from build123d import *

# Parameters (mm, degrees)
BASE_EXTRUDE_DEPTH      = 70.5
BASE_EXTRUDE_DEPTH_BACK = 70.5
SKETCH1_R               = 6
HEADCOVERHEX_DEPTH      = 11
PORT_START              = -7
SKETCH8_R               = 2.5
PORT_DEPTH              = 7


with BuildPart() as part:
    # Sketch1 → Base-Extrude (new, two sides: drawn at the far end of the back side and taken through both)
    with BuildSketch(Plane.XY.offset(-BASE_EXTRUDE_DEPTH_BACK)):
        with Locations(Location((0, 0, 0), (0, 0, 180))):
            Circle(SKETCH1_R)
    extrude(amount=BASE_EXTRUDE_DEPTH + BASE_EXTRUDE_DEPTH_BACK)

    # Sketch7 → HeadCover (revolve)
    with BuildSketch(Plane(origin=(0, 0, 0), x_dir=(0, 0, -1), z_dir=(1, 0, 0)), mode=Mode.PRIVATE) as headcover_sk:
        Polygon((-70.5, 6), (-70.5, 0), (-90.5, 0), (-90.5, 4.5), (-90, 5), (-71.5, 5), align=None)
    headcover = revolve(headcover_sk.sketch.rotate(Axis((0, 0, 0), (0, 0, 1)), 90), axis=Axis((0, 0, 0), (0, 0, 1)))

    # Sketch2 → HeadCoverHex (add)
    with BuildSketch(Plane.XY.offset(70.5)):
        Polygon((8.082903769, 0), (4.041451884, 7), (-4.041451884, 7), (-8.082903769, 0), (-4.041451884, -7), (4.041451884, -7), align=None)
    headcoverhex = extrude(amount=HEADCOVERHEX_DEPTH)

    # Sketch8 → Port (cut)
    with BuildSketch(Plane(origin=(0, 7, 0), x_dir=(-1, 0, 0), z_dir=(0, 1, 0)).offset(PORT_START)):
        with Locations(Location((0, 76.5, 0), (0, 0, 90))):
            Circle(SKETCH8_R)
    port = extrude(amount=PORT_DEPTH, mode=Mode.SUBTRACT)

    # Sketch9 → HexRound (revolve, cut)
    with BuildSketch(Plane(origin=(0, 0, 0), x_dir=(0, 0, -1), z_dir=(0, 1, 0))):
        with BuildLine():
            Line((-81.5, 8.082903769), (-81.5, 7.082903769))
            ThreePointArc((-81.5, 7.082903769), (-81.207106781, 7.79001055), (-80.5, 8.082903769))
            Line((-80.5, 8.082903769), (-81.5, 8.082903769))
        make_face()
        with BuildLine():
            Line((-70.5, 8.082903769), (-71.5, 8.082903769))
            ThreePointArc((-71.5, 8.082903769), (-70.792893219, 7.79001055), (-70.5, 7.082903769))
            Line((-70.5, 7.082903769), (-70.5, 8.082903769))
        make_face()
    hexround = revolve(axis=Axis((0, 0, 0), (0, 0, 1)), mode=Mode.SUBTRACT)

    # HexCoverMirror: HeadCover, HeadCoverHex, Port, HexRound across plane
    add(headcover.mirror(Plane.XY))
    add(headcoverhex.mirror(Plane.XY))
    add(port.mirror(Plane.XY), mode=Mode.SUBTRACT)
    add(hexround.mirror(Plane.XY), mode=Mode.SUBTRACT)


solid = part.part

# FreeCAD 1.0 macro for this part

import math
import FreeCAD as App
import Part
import Sketcher

V = App.Vector
Q = App.Units.Quantity

doc = App.newDocument("Part")
body = doc.addObject("PartDesign::Body", "Body")

sketch1 = body.newObject("Sketcher::SketchObject", "Sketch")
sketch1.AttachmentSupport = (doc.getObject("XY_Plane"), [""])
sketch1.MapMode = "FlatFace"
sketch1.addGeometry(Part.Circle(V(0, 0, 0), V(0, 0, 1), 6), False)
sketch1.addConstraint([
    Sketcher.Constraint("Coincident", 0, 3, -1, 1),
    Sketcher.Constraint("Diameter", 0, 12.0),
])
pad1 = body.newObject("PartDesign::Pad", "Pad")
pad1.Profile = sketch1
pad1.Type = "TwoLengths"
pad1.Length = 70.5
pad1.Length2 = 70.5

sketch2 = body.newObject("Sketcher::SketchObject", "Sketch001")
sketch2.AttachmentSupport = (doc.getObject("YZ_Plane"), [""])
sketch2.MapMode = "FlatFace"
sketch2.addGeometry([
    Part.LineSegment(V(0, 70.5, 0), V(6, 70.5, 0)),
    Part.LineSegment(V(6, 70.5, 0), V(5, 71.5, 0)),
    Part.LineSegment(V(5, 71.5, 0), V(5, 90, 0)),
    Part.LineSegment(V(5, 90, 0), V(4.5, 90.5, 0)),
    Part.LineSegment(V(4.5, 90.5, 0), V(0, 90.5, 0)),
    Part.LineSegment(V(0, 90.5, 0), V(0, 70.5, 0)),
], False)
sketch2.addConstraint([
    Sketcher.Constraint("Coincident", 0, 2, 1, 1),
    Sketcher.Constraint("Coincident", 1, 2, 2, 1),
    Sketcher.Constraint("Coincident", 2, 2, 3, 1),
    Sketcher.Constraint("Coincident", 3, 2, 4, 1),
    Sketcher.Constraint("Coincident", 4, 2, 5, 1),
    Sketcher.Constraint("Coincident", 5, 2, 0, 1),
    Sketcher.Constraint("Horizontal", 0),
    Sketcher.Constraint("Vertical", 2),
    Sketcher.Constraint("Horizontal", 4),
    Sketcher.Constraint("Vertical", 5),
    Sketcher.Constraint("PointOnObject", 4, 2, -2),
    Sketcher.Constraint("Parallel", 1, 3),
    Sketcher.Constraint("DistanceX", 0, 1, 0, 2, 6.0),
    Sketcher.Constraint("DistanceY", 5, 2, 5, 1, 20.0),
    Sketcher.Constraint("Angle", 1, Q("135 deg")),
    Sketcher.Constraint("DistanceX", 4, 2, 4, 1, 4.5),
    Sketcher.Constraint("DistanceX", -1, 1, 1, 2, 5.0),
    Sketcher.Constraint("DistanceY", -1, 1, 2, 2, 90.0),
])
revolution = body.newObject("PartDesign::Revolution", "Revolution")
revolution.Profile = sketch2
revolution.ReferenceAxis = (sketch2, ["V_Axis"])
revolution.Angle = 360

sketch3 = body.newObject("Sketcher::SketchObject", "Sketch002")
sketch3.AttachmentSupport = (doc.getObject("XY_Plane"), [""])
sketch3.MapMode = "FlatFace"
sketch3.AttachmentOffset = App.Placement(V(0, 0, 70.5), App.Rotation())
sketch3.addGeometry([
    Part.LineSegment(V(8.082904, 0, 0), V(4.041452, 7, 0)),
    Part.LineSegment(V(4.041452, 7, 0), V(-4.041452, 7, 0)),
    Part.LineSegment(V(-4.041452, 7, 0), V(-8.082904, 0, 0)),
    Part.LineSegment(V(-8.082904, 0, 0), V(-4.041452, -7, 0)),
    Part.LineSegment(V(-4.041452, -7, 0), V(4.041452, -7, 0)),
    Part.LineSegment(V(4.041452, -7, 0), V(8.082904, 0, 0)),
], False)
sketch3.addConstraint([
    Sketcher.Constraint("Coincident", 0, 2, 1, 1),
    Sketcher.Constraint("Coincident", 1, 2, 2, 1),
    Sketcher.Constraint("Coincident", 2, 2, 3, 1),
    Sketcher.Constraint("Coincident", 3, 2, 4, 1),
    Sketcher.Constraint("Coincident", 4, 2, 5, 1),
    Sketcher.Constraint("Coincident", 5, 2, 0, 1),
    Sketcher.Constraint("Horizontal", 1),
    Sketcher.Constraint("Horizontal", 4),
    Sketcher.Constraint("Symmetric", 0, 2, 3, 2, -1, 1),
    Sketcher.Constraint("Symmetric", 2, 2, 5, 2, -1, 1),
    Sketcher.Constraint("PointOnObject", 2, 2, -1),
    Sketcher.Constraint("Parallel", 2, 5),
    Sketcher.Constraint("Vertical", 1, 2, 3, 2),
    Sketcher.Constraint("Angle", 0, Q("120 deg")),
    Sketcher.Constraint("DistanceY", -1, 1, 0, 2, 7.0),
    Sketcher.Constraint("DistanceX", 1, 2, 1, 1, 8.082904),
])
pad2 = body.newObject("PartDesign::Pad", "Pad001")
pad2.Profile = sketch3
pad2.Length = 11

sketch4 = body.newObject("Sketcher::SketchObject", "Sketch003")
sketch4.AttachmentSupport = (doc.getObject("XZ_Plane"), [""])
sketch4.MapMode = "FlatFace"
sketch4.addGeometry(Part.Circle(V(0, 76.5, 0), V(0, 0, 1), 2.5), False)
sketch4.addConstraint([
    Sketcher.Constraint("PointOnObject", 0, 3, -2),
    Sketcher.Constraint("Diameter", 0, 5.0),
    Sketcher.Constraint("DistanceY", -1, 1, 0, 3, 76.5),
])
pocket1 = body.newObject("PartDesign::Pocket", "Pocket")
pocket1.Profile = sketch4
pocket1.Length = 7

sketch5 = body.newObject("Sketcher::SketchObject", "Sketch004")
sketch5.AttachmentSupport = (doc.getObject("XZ_Plane"), [""])
sketch5.MapMode = "FlatFace"
sketch5.addGeometry([
    Part.LineSegment(V(-8.082904, 81.5, 0), V(-7.082904, 81.5, 0)),
    Part.ArcOfCircle(Part.Circle(V(-7.082904, 80.5, 0), V(0, 0, 1), 1), math.radians(90), math.radians(180)),
    Part.LineSegment(V(-8.082904, 80.5, 0), V(-8.082904, 81.5, 0)),
    Part.LineSegment(V(-8.082904, 70.5, 0), V(-8.082904, 71.5, 0)),
    Part.ArcOfCircle(Part.Circle(V(-7.082904, 71.5, 0), V(0, 0, 1), 1), math.radians(-180), math.radians(-90)),
    Part.LineSegment(V(-7.082904, 70.5, 0), V(-8.082904, 70.5, 0)),
], False)
sketch5.addConstraint([
    Sketcher.Constraint("Tangent", 0, 2, 1, 1),
    Sketcher.Constraint("Tangent", 1, 2, 2, 1),
    Sketcher.Constraint("Coincident", 2, 2, 0, 1),
    Sketcher.Constraint("Tangent", 3, 2, 4, 1),
    Sketcher.Constraint("Tangent", 4, 2, 5, 1),
    Sketcher.Constraint("Coincident", 5, 2, 3, 1),
    Sketcher.Constraint("Horizontal", 0),
    Sketcher.Constraint("Vertical", 2),
    Sketcher.Constraint("Vertical", 3),
    Sketcher.Constraint("Horizontal", 5),
    Sketcher.Constraint("Equal", 1, 4),
    Sketcher.Constraint("Vertical", 1, 3, 4, 3),
    Sketcher.Constraint("Radius", 1, 1.0),
    Sketcher.Constraint("DistanceY", 4, 3, 1, 3, 9.0),
    Sketcher.Constraint("DistanceY", -1, 1, 1, 3, 80.5),
    Sketcher.Constraint("DistanceX", 1, 3, -1, 1, 7.082904),
])
groove = body.newObject("PartDesign::Groove", "Groove")
groove.Profile = sketch5
groove.ReferenceAxis = (sketch5, ["V_Axis"])
groove.Angle = 360
doc.recompute()

mirrored = body.newObject("PartDesign::Mirrored", "Mirrored")
mirrored.Originals = [revolution, pad2, pocket1, groove]
mirrored.MirrorPlane = (doc.getObject("XY_Plane"), [""])
body.Tip = mirrored

doc.recompute()
